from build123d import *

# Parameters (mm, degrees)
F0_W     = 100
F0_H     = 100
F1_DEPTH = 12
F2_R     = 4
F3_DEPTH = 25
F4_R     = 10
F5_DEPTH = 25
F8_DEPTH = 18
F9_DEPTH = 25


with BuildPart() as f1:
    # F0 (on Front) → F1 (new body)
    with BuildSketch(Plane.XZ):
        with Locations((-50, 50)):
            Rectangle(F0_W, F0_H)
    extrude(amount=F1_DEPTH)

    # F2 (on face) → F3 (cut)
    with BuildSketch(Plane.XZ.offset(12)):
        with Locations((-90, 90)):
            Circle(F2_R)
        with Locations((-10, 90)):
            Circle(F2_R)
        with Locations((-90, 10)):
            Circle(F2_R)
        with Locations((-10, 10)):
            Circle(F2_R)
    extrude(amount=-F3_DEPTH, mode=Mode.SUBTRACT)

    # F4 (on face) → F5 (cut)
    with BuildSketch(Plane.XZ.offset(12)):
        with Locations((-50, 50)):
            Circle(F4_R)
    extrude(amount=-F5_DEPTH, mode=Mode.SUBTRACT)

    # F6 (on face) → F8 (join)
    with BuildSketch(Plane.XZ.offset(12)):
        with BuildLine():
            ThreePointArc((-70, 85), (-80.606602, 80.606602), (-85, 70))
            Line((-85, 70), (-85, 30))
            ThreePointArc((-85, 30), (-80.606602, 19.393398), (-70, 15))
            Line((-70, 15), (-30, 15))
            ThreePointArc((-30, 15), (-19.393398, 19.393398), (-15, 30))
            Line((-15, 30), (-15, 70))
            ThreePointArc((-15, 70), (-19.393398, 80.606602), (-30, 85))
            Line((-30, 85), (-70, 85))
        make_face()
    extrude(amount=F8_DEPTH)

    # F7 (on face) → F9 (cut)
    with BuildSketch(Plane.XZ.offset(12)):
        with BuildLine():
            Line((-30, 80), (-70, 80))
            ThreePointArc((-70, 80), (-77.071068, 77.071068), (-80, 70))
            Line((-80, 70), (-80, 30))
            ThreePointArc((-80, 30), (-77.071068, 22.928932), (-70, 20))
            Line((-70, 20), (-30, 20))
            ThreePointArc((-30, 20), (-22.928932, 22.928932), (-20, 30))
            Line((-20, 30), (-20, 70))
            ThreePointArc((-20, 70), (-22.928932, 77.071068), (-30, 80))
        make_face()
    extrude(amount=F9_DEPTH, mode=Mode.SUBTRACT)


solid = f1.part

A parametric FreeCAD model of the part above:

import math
import FreeCAD as App
import Part
import Sketcher


def add_polygon(sketch, points):
    """Adds a closed chain of lines whose ends are joined by coincident constraints."""
    first, n = sketch.GeometryCount, len(points)
    for a, b in zip(points, points[1:] + points[:1]):
        sketch.addGeometry(Part.LineSegment(App.Vector(*a, 0), App.Vector(*b, 0)), False)
    for i in range(n):
        sketch.addConstraint(Sketcher.Constraint("Coincident", first + i, 2, first + (i + 1) % n, 1))

doc = App.newDocument("Part")
body = doc.addObject("PartDesign::Body", "Body")

sketch1 = doc.addObject("Sketcher::SketchObject", "Sketch")
body.addObject(sketch1)
sketch1.AttachmentSupport = (doc.XZ_Plane, [""])
sketch1.MapMode = "FlatFace"
add_polygon(sketch1, [(-100, 100), (-100, 0), (0, 0), (0, 100)])
sketch1.addConstraint(Sketcher.Constraint("Vertical", 0))
sketch1.addConstraint(Sketcher.Constraint("Horizontal", 1))
sketch1.addConstraint(Sketcher.Constraint("Vertical", 2))
sketch1.addConstraint(Sketcher.Constraint("Horizontal", 3))
sketch1.addConstraint(Sketcher.Constraint("Coincident", 1, 2, -1, 1))
sketch1.addConstraint(Sketcher.Constraint("Equal", 3, 0))
sketch1.addConstraint(Sketcher.Constraint("DistanceX", 1, 1, 1, 2, 100.0))
pad1 = doc.addObject("PartDesign::Pad", "Pad")
body.addObject(pad1)
pad1.Profile = sketch1
pad1.Length = 12

sketch2 = doc.addObject("Sketcher::SketchObject", "Sketch001")
body.addObject(sketch2)
sketch2.AttachmentSupport = (doc.XZ_Plane, [""])
sketch2.MapMode = "FlatFace"
sketch2.AttachmentOffset = App.Placement(App.Vector(0, 0, 12), App.Rotation())
sketch2.addGeometry(Part.Circle(App.Vector(-90, 90, 0), App.Vector(0, 0, 1), 4), False)
sketch2.addGeometry(Part.Circle(App.Vector(-10, 90, 0), App.Vector(0, 0, 1), 4), False)
sketch2.addGeometry(Part.Circle(App.Vector(-90, 10, 0), App.Vector(0, 0, 1), 4), False)
sketch2.addGeometry(Part.Circle(App.Vector(-10, 10, 0), App.Vector(0, 0, 1), 4), False)
sketch2.addConstraint(Sketcher.Constraint("Equal", 0, 1))
sketch2.addConstraint(Sketcher.Constraint("Equal", 1, 2))
sketch2.addConstraint(Sketcher.Constraint("Equal", 2, 3))
sketch2.addConstraint(Sketcher.Constraint("Horizontal", 0, 3, 1, 3))
sketch2.addConstraint(Sketcher.Constraint("Horizontal", 2, 3, 3, 3))
sketch2.addConstraint(Sketcher.Constraint("Vertical", 0, 3, 2, 3))
sketch2.addConstraint(Sketcher.Constraint("Vertical", 1, 3, 3, 3))
sketch2.addConstraint(Sketcher.Constraint("Diameter", 0, 8.0))
sketch2.addConstraint(Sketcher.Constraint("DistanceX", 0, 3, -1, 1, 90.0))
sketch2.addConstraint(Sketcher.Constraint("DistanceY", -1, 1, 0, 3, 90.0))
sketch2.addConstraint(Sketcher.Constraint("DistanceX", 1, 3, -1, 1, 10.0))
sketch2.addConstraint(Sketcher.Constraint("DistanceY", -1, 1, 2, 3, 10.0))
pocket1 = doc.addObject("PartDesign::Pocket", "Pocket")
body.addObject(pocket1)
pocket1.Profile = sketch2
pocket1.Length = 25

sketch3 = doc.addObject("Sketcher::SketchObject", "Sketch002")
body.addObject(sketch3)
sketch3.AttachmentSupport = (doc.XZ_Plane, [""])
sketch3.MapMode = "FlatFace"
sketch3.AttachmentOffset = App.Placement(App.Vector(0, 0, 12), App.Rotation())
sketch3.addGeometry(Part.Circle(App.Vector(-50, 50, 0), App.Vector(0, 0, 1), 10), False)
sketch3.addConstraint(Sketcher.Constraint("Diameter", 0, 20.0))
sketch3.addConstraint(Sketcher.Constraint("DistanceX", 0, 3, -1, 1, 50.0))
sketch3.addConstraint(Sketcher.Constraint("DistanceY", -1, 1, 0, 3, 50.0))
pocket2 = doc.addObject("PartDesign::Pocket", "Pocket001")
body.addObject(pocket2)
pocket2.Profile = sketch3
pocket2.Length = 25

sketch4 = doc.addObject("Sketcher::SketchObject", "Sketch003")
body.addObject(sketch4)
sketch4.AttachmentSupport = (doc.XZ_Plane, [""])
sketch4.MapMode = "FlatFace"
sketch4.AttachmentOffset = App.Placement(App.Vector(0, 0, 12), App.Rotation())
sketch4.addGeometry(Part.ArcOfCircle(Part.Circle(App.Vector(-70, 70, 0), App.Vector(0, 0, 1), 15), math.radians(90), math.radians(180)), False)
sketch4.addGeometry(Part.LineSegment(App.Vector(-85, 70, 0), App.Vector(-85, 30, 0)), False)
sketch4.addGeometry(Part.ArcOfCircle(Part.Circle(App.Vector(-70, 30, 0), App.Vector(0, 0, 1), 15), math.radians(180), math.radians(270)), False)
sketch4.addGeometry(Part.LineSegment(App.Vector(-70, 15, 0), App.Vector(-30, 15, 0)), False)
sketch4.addGeometry(Part.ArcOfCircle(Part.Circle(App.Vector(-30, 30, 0), App.Vector(0, 0, 1), 15), math.radians(-90), math.radians(0)), False)
sketch4.addGeometry(Part.LineSegment(App.Vector(-15, 30, 0), App.Vector(-15, 70, 0)), False)
sketch4.addGeometry(Part.ArcOfCircle(Part.Circle(App.Vector(-30, 70, 0), App.Vector(0, 0, 1), 15), math.radians(0), math.radians(90)), False)
sketch4.addGeometry(Part.LineSegment(App.Vector(-30, 85, 0), App.Vector(-70, 85, 0)), False)
sketch4.addConstraint(Sketcher.Constraint("Tangent", 0, 2, 1, 1))
sketch4.addConstraint(Sketcher.Constraint("Tangent", 1, 2, 2, 1))
sketch4.addConstraint(Sketcher.Constraint("Tangent", 2, 2, 3, 1))
sketch4.addConstraint(Sketcher.Constraint("Tangent", 3, 2, 4, 1))
sketch4.addConstraint(Sketcher.Constraint("Tangent", 4, 2, 5, 1))
sketch4.addConstraint(Sketcher.Constraint("Tangent", 5, 2, 6, 1))
sketch4.addConstraint(Sketcher.Constraint("Tangent", 6, 2, 7, 1))
sketch4.addConstraint(Sketcher.Constraint("Tangent", 7, 2, 0, 1))
sketch4.addConstraint(Sketcher.Constraint("Vertical", 1))
sketch4.addConstraint(Sketcher.Constraint("Horizontal", 3))
sketch4.addConstraint(Sketcher.Constraint("Vertical", 5))
sketch4.addConstraint(Sketcher.Constraint("Horizontal", 7))
sketch4.addConstraint(Sketcher.Constraint("Equal", 0, 2))
sketch4.addConstraint(Sketcher.Constraint("Equal", 2, 4))
sketch4.addConstraint(Sketcher.Constraint("Equal", 4, 6))
sketch4.addConstraint(Sketcher.Constraint("Equal", 7, 1))
sketch4.addConstraint(Sketcher.Constraint("Radius", 0, 14.999999))
sketch4.addConstraint(Sketcher.Constraint("DistanceX", 3, 1, 3, 2, 40.0))
sketch4.addConstraint(Sketcher.Constraint("DistanceX", 0, 3, -1, 1, 70.000001))
sketch4.addConstraint(Sketcher.Constraint("DistanceY", -1, 1, 0, 3, 70.000001))
pad2 = doc.addObject("PartDesign::Pad", "Pad001")
body.addObject(pad2)
pad2.Profile = sketch4
pad2.Length = 18

sketch5 = doc.addObject("Sketcher::SketchObject", "Sketch004")
body.addObject(sketch5)
sketch5.AttachmentSupport = (doc.XZ_Plane, [""])
sketch5.MapMode = "FlatFace"
sketch5.AttachmentOffset = App.Placement(App.Vector(0, 0, 12), App.Rotation())
sketch5.addGeometry(Part.LineSegment(App.Vector(-30, 80, 0), App.Vector(-70, 80, 0)), False)
sketch5.addGeometry(Part.ArcOfCircle(Part.Circle(App.Vector(-70, 70, 0), App.Vector(0, 0, 1), 10), math.radians(90), math.radians(180)), False)
sketch5.addGeometry(Part.LineSegment(App.Vector(-80, 70, 0), App.Vector(-80, 30, 0)), False)
sketch5.addGeometry(Part.ArcOfCircle(Part.Circle(App.Vector(-70, 30, 0), App.Vector(0, 0, 1), 10), math.radians(180), math.radians(270)), False)
sketch5.addGeometry(Part.LineSegment(App.Vector(-70, 20, 0), App.Vector(-30, 20, 0)), False)
sketch5.addGeometry(Part.ArcOfCircle(Part.Circle(App.Vector(-30, 30, 0), App.Vector(0, 0, 1), 10), math.radians(-90), math.radians(0)), False)
sketch5.addGeometry(Part.LineSegment(App.Vector(-20, 30, 0), App.Vector(-20, 70, 0)), False)
sketch5.addGeometry(Part.ArcOfCircle(Part.Circle(App.Vector(-30, 70, 0), App.Vector(0, 0, 1), 10), math.radians(0), math.radians(90)), False)
sketch5.addConstraint(Sketcher.Constraint("Tangent", 0, 2, 1, 1))
sketch5.addConstraint(Sketcher.Constraint("Tangent", 1, 2, 2, 1))
sketch5.addConstraint(Sketcher.Constraint("Tangent", 2, 2, 3, 1))
sketch5.addConstraint(Sketcher.Constraint("Tangent", 3, 2, 4, 1))
sketch5.addConstraint(Sketcher.Constraint("Tangent", 4, 2, 5, 1))
sketch5.addConstraint(Sketcher.Constraint("Tangent", 5, 2, 6, 1))
sketch5.addConstraint(Sketcher.Constraint("Tangent", 6, 2, 7, 1))
sketch5.addConstraint(Sketcher.Constraint("Tangent", 7, 2, 0, 1))
sketch5.addConstraint(Sketcher.Constraint("Horizontal", 0))
sketch5.addConstraint(Sketcher.Constraint("Vertical", 2))
sketch5.addConstraint(Sketcher.Constraint("Horizontal", 4))
sketch5.addConstraint(Sketcher.Constraint("Vertical", 6))
sketch5.addConstraint(Sketcher.Constraint("Equal", 1, 3))
sketch5.addConstraint(Sketcher.Constraint("Equal", 3, 5))
sketch5.addConstraint(Sketcher.Constraint("Equal", 5, 7))
sketch5.addConstraint(Sketcher.Constraint("Equal", 4, 2))
sketch5.addConstraint(Sketcher.Constraint("Radius", 1, 9.999999))
sketch5.addConstraint(Sketcher.Constraint("DistanceX", 0, 2, 0, 1, 40.0))
sketch5.addConstraint(Sketcher.Constraint("DistanceX", 1, 3, -1, 1, 70.000001))
sketch5.addConstraint(Sketcher.Constraint("DistanceY", -1, 1, 1, 3, 70.000001))
pocket3 = doc.addObject("PartDesign::Pocket", "Pocket002")
body.addObject(pocket3)
pocket3.Profile = sketch5
pocket3.Length = 25
pocket3.Reversed = True

doc.recompute()
